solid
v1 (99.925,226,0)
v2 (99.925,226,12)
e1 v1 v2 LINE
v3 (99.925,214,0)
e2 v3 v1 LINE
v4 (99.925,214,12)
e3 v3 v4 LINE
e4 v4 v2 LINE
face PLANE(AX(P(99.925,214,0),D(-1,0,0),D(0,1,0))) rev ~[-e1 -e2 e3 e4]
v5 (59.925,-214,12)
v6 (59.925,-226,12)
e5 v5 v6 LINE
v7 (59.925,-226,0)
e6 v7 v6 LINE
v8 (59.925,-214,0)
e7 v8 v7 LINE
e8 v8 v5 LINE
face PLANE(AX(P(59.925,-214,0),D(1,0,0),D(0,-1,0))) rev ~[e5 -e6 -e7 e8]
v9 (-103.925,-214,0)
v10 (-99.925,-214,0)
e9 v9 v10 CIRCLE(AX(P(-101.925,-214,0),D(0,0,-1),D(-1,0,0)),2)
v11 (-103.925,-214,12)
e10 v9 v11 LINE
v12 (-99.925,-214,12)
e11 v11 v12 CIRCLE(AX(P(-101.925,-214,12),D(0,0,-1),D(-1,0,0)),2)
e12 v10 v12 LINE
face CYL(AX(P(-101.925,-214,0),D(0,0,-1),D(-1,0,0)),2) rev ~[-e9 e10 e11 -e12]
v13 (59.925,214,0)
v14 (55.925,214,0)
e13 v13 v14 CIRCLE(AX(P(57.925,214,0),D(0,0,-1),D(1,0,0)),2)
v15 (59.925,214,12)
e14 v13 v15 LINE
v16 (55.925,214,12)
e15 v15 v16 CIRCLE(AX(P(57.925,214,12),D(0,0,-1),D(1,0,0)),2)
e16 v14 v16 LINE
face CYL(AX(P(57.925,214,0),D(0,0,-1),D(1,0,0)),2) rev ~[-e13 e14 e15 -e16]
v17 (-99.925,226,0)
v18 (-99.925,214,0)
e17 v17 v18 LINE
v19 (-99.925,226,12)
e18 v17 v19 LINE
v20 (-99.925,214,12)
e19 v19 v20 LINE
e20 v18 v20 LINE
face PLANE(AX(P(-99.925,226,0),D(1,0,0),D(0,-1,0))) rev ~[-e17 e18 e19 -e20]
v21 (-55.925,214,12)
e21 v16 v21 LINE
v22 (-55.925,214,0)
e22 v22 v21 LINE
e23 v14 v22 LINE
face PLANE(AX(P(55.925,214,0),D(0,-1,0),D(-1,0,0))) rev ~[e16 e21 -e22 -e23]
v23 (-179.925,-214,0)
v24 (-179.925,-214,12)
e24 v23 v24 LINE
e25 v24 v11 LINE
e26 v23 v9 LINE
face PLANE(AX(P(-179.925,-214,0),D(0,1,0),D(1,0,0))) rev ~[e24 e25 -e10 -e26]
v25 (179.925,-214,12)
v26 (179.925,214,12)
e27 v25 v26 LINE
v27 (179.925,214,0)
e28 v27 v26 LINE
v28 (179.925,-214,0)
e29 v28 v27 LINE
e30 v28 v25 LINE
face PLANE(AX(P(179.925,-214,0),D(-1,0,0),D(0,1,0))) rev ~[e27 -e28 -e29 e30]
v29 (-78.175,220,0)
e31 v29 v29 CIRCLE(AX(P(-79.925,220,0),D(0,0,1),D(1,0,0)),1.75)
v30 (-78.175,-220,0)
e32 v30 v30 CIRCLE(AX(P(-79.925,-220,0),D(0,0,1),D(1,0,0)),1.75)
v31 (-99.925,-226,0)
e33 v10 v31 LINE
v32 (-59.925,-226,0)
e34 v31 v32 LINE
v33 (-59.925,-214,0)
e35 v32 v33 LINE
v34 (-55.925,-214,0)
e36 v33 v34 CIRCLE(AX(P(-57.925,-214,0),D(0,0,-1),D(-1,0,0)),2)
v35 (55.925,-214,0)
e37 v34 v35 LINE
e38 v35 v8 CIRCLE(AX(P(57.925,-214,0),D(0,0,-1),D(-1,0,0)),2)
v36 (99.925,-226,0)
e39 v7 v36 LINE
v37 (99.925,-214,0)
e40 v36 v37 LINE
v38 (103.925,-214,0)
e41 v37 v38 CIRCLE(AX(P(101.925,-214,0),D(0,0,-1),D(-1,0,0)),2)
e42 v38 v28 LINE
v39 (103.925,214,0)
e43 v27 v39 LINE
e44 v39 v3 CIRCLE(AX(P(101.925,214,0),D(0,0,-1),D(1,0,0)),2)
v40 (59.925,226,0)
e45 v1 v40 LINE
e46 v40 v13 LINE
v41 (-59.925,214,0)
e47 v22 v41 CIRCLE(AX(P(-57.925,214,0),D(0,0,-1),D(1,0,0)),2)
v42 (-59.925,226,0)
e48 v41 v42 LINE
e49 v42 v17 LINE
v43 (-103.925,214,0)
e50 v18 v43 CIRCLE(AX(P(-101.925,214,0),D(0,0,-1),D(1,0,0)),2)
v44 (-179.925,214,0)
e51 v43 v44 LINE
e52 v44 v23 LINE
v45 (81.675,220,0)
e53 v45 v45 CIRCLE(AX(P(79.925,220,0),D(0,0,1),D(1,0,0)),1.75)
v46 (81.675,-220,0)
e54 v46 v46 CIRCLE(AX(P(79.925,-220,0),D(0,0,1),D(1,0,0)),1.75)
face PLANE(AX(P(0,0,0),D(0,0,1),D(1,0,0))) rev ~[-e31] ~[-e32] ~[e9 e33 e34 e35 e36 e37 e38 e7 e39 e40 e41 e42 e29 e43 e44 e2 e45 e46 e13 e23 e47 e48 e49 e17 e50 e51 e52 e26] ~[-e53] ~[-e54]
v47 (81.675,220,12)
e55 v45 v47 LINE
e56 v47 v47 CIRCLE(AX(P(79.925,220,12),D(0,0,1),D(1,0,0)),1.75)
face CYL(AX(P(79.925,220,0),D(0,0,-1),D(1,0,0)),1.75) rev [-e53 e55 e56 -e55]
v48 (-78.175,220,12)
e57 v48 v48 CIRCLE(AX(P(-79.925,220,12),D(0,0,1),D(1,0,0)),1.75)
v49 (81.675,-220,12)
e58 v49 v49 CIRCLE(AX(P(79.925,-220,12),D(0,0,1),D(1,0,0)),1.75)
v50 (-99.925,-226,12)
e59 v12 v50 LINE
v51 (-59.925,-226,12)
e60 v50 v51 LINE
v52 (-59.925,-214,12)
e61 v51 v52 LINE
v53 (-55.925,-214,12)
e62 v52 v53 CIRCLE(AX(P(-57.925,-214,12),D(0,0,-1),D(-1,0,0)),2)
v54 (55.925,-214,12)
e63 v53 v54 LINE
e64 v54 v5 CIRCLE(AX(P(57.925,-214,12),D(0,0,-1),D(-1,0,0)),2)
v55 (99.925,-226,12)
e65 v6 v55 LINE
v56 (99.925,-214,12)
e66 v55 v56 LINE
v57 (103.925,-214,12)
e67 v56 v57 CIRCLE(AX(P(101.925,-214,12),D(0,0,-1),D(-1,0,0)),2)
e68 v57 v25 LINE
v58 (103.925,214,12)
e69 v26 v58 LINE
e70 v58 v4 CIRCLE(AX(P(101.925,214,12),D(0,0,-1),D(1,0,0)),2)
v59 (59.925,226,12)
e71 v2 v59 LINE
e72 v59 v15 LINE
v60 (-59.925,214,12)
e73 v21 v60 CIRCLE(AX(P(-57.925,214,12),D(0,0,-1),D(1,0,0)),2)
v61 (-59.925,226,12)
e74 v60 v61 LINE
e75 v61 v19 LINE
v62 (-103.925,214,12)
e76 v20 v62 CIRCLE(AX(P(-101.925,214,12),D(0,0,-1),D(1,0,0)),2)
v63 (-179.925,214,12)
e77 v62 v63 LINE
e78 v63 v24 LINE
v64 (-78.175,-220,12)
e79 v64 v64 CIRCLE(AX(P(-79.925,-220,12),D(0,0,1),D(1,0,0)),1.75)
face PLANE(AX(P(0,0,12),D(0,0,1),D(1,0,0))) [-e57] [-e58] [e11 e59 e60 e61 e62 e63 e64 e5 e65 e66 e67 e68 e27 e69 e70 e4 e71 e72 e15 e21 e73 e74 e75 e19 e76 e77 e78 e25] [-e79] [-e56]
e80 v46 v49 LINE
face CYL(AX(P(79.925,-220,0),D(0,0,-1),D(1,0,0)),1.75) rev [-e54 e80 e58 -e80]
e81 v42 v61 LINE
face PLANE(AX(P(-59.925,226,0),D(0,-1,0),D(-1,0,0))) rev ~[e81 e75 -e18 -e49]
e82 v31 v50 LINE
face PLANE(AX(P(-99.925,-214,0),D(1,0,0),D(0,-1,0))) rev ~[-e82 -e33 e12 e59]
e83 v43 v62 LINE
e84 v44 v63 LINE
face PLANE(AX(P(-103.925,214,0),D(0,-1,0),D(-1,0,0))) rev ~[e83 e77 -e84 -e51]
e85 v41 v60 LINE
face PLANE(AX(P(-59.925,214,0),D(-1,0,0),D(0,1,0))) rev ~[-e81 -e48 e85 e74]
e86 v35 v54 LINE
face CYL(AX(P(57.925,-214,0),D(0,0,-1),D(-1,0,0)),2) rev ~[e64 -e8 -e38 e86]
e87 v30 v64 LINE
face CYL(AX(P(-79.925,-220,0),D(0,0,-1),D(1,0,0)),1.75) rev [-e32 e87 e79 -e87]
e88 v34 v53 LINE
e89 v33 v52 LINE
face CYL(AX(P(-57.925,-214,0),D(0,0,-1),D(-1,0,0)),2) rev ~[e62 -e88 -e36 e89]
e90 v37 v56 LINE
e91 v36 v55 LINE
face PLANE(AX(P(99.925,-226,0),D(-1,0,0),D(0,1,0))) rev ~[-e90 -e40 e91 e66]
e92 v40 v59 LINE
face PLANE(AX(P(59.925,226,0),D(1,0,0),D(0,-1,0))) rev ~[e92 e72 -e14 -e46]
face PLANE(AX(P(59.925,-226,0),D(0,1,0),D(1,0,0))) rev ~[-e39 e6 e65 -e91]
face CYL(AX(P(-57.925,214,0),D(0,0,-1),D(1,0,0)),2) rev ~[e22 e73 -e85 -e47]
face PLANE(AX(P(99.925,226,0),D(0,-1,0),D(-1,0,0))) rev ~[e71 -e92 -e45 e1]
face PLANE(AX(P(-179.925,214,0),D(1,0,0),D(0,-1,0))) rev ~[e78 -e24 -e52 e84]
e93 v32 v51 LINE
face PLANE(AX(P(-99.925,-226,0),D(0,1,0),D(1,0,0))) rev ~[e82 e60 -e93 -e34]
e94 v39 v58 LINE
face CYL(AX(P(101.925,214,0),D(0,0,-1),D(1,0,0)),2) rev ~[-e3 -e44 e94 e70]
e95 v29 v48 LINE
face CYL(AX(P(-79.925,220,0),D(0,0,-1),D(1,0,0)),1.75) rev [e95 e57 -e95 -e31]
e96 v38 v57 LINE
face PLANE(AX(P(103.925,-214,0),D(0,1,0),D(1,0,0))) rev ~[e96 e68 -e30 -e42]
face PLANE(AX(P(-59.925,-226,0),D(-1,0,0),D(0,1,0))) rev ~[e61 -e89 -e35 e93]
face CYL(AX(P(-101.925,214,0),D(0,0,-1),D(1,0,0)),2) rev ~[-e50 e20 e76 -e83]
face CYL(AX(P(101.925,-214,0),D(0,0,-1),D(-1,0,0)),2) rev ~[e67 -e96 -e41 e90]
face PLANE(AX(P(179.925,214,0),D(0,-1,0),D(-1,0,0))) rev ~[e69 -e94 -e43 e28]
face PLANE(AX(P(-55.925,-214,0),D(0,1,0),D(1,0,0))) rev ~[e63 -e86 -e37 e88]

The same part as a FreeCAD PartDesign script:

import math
import FreeCAD as App
import Part
import Sketcher

doc = App.newDocument("Part")
body = doc.addObject("PartDesign::Body", "Body")

sketch1 = body.newObject("Sketcher::SketchObject", "Sketch")
sketch1.AttachmentSupport = (doc.getObject("XY_Plane"), [""])
sketch1.MapMode = "FlatFace"
sketch1.addGeometry([
    Part.LineSegment(App.Vector(-179.925, 214, 0), App.Vector(-179.925, -214, 0)),
    Part.LineSegment(App.Vector(-179.925, -214, 0), App.Vector(-103.925, -214, 0)),
    Part.ArcOfCircle(Part.Circle(App.Vector(-101.925, -214, 0), App.Vector(0, 0, 1), 2), math.radians(0), math.radians(180)),
    Part.LineSegment(App.Vector(-99.925, -214, 0), App.Vector(-99.925, -226, 0)),
    Part.LineSegment(App.Vector(-99.925, -226, 0), App.Vector(-59.925, -226, 0)),
    Part.LineSegment(App.Vector(-59.925, -226, 0), App.Vector(-59.925, -214, 0)),
    Part.ArcOfCircle(Part.Circle(App.Vector(-57.925, -214, 0), App.Vector(0, 0, 1), 2), math.radians(0), math.radians(180)),
    Part.LineSegment(App.Vector(-55.925, -214, 0), App.Vector(55.925, -214, 0)),
    Part.ArcOfCircle(Part.Circle(App.Vector(57.925, -214, 0), App.Vector(0, 0, 1), 2), math.radians(0), math.radians(180)),
    Part.LineSegment(App.Vector(59.925, -214, 0), App.Vector(59.925, -226, 0)),
    Part.LineSegment(App.Vector(59.925, -226, 0), App.Vector(99.925, -226, 0)),
    Part.LineSegment(App.Vector(99.925, -226, 0), App.Vector(99.925, -214, 0)),
    Part.ArcOfCircle(Part.Circle(App.Vector(101.925, -214, 0), App.Vector(0, 0, 1), 2), math.radians(0), math.radians(180)),
    Part.LineSegment(App.Vector(103.925, -214, 0), App.Vector(179.925, -214, 0)),
    Part.LineSegment(App.Vector(179.925, -214, 0), App.Vector(179.925, 214, 0)),
    Part.LineSegment(App.Vector(179.925, 214, 0), App.Vector(103.925, 214, 0)),
    Part.ArcOfCircle(Part.Circle(App.Vector(101.925, 214, 0), App.Vector(0, 0, 1), 2), math.radians(180), math.radians(360)),
    Part.LineSegment(App.Vector(99.925, 214, 0), App.Vector(99.925, 226, 0)),
    Part.LineSegment(App.Vector(99.925, 226, 0), App.Vector(59.925, 226, 0)),
    Part.LineSegment(App.Vector(59.925, 226, 0), App.Vector(59.925, 214, 0)),
    Part.ArcOfCircle(Part.Circle(App.Vector(57.925, 214, 0), App.Vector(0, 0, 1), 2), math.radians(180), math.radians(360)),
    Part.LineSegment(App.Vector(55.925, 214, 0), App.Vector(-55.925, 214, 0)),
    Part.ArcOfCircle(Part.Circle(App.Vector(-57.925, 214, 0), App.Vector(0, 0, 1), 2), math.radians(180), math.radians(360)),
    Part.LineSegment(App.Vector(-59.925, 214, 0), App.Vector(-59.925, 226, 0)),
    Part.LineSegment(App.Vector(-59.925, 226, 0), App.Vector(-99.925, 226, 0)),
    Part.LineSegment(App.Vector(-99.925, 226, 0), App.Vector(-99.925, 214, 0)),
    Part.ArcOfCircle(Part.Circle(App.Vector(-101.925, 214, 0), App.Vector(0, 0, 1), 2), math.radians(180), math.radians(360)),
    Part.LineSegment(App.Vector(-103.925, 214, 0), App.Vector(-179.925, 214, 0)),
    Part.Circle(App.Vector(-79.925, -220, 0), App.Vector(0, 0, 1), 1.75),
    Part.Circle(App.Vector(79.925, -220, 0), App.Vector(0, 0, 1), 1.75),
    Part.Circle(App.Vector(-79.925, 220, 0), App.Vector(0, 0, 1), 1.75),
    Part.Circle(App.Vector(79.925, 220, 0), App.Vector(0, 0, 1), 1.75),
], False)
sketch1.addConstraint([
    Sketcher.Constraint("Coincident", 0, 2, 1, 1),
    Sketcher.Constraint("Coincident", 1, 2, 2, 2),
    Sketcher.Constraint("Tangent", 2, 1, 3, 1),
    Sketcher.Constraint("Coincident", 3, 2, 4, 1),
    Sketcher.Constraint("Coincident", 4, 2, 5, 1),
    Sketcher.Constraint("Tangent", 5, 2, 6, 2),
    Sketcher.Constraint("Coincident", 6, 1, 7, 1),
    Sketcher.Constraint("Coincident", 7, 2, 8, 2),
    Sketcher.Constraint("Tangent", 8, 1, 9, 1),
    Sketcher.Constraint("Coincident", 9, 2, 10, 1),
    Sketcher.Constraint("Coincident", 10, 2, 11, 1),
    Sketcher.Constraint("Tangent", 11, 2, 12, 2),
    Sketcher.Constraint("Coincident", 12, 1, 13, 1),
    Sketcher.Constraint("Coincident", 13, 2, 14, 1),
    Sketcher.Constraint("Coincident", 14, 2, 15, 1),
    Sketcher.Constraint("Coincident", 15, 2, 16, 2),
    Sketcher.Constraint("Tangent", 16, 1, 17, 1),
    Sketcher.Constraint("Coincident", 17, 2, 18, 1),
    Sketcher.Constraint("Coincident", 18, 2, 19, 1),
    Sketcher.Constraint("Tangent", 19, 2, 20, 2),
    Sketcher.Constraint("Coincident", 20, 1, 21, 1),
    Sketcher.Constraint("Coincident", 21, 2, 22, 2),
    Sketcher.Constraint("Tangent", 22, 1, 23, 1),
    Sketcher.Constraint("Coincident", 23, 2, 24, 1),
    Sketcher.Constraint("Coincident", 24, 2, 25, 1),
    Sketcher.Constraint("Tangent", 25, 2, 26, 2),
    Sketcher.Constraint("Coincident", 26, 1, 27, 1),
    Sketcher.Constraint("Coincident", 27, 2, 0, 1),
    Sketcher.Constraint("Vertical", 0),
    Sketcher.Constraint("Horizontal", 1),
    Sketcher.Constraint("Vertical", 3),
    Sketcher.Constraint("Horizontal", 4),
    Sketcher.Constraint("Vertical", 5),
    Sketcher.Constraint("Horizontal", 7),
    Sketcher.Constraint("Vertical", 9),
    Sketcher.Constraint("Horizontal", 10),
    Sketcher.Constraint("Vertical", 11),
    Sketcher.Constraint("Horizontal", 13),
    Sketcher.Constraint("Vertical", 14),
    Sketcher.Constraint("Horizontal", 15),
    Sketcher.Constraint("Vertical", 17),
    Sketcher.Constraint("Horizontal", 18),
    Sketcher.Constraint("Vertical", 19),
    Sketcher.Constraint("Horizontal", 21),
    Sketcher.Constraint("Vertical", 23),
    Sketcher.Constraint("Horizontal", 24),
    Sketcher.Constraint("Vertical", 25),
    Sketcher.Constraint("Horizontal", 27),
    Sketcher.Constraint("Equal", 2, 6),
    Sketcher.Constraint("Equal", 6, 8),
    Sketcher.Constraint("Equal", 8, 12),
    Sketcher.Constraint("Equal", 12, 16),
    Sketcher.Constraint("Equal", 16, 20),
    Sketcher.Constraint("Equal", 20, 22),
    Sketcher.Constraint("Equal", 22, 26),
    Sketcher.Constraint("Equal", 28, 29),
    Sketcher.Constraint("Equal", 29, 30),
    Sketcher.Constraint("Equal", 30, 31),
    Sketcher.Constraint("Symmetric", 2, 3, 16, 3, -1, 1),
    Sketcher.Constraint("Symmetric", 6, 3, 20, 3, -1, 1),
    Sketcher.Constraint("Symmetric", 8, 3, 22, 3, -1, 1),
    Sketcher.Constraint("Symmetric", 12, 3, 26, 3, -1, 1),
    Sketcher.Constraint("Symmetric", 29, 3, 30, 3, -1, 1),
    Sketcher.Constraint("Symmetric", 28, 3, 31, 3, -1, 1),
    Sketcher.Constraint("Symmetric", 0, 2, 14, 2, -1, 1),
    Sketcher.Constraint("Symmetric", 6, 3, 8, 3, -2),
    Sketcher.Constraint("Symmetric", 2, 3, 12, 3, -2),
    Sketcher.Constraint("Symmetric", 28, 3, 29, 3, -2),
    Sketcher.Constraint("Horizontal", 2, 3, 6, 3),
    Sketcher.Constraint("Horizontal", 12, 3, 0, 2),
    Sketcher.Constraint("Horizontal", 5, 2, 6, 1),
    Sketcher.Constraint("Horizontal", 4, 2, 9, 2),
    Sketcher.Constraint("Horizontal", 11, 2, 12, 1),
    Sketcher.Constraint("Horizontal", 19, 2, 20, 1),
    Sketcher.Constraint("Horizontal", 18, 2, 23, 2),
    Sketcher.Constraint("Horizontal", 25, 2, 26, 1),
    Sketcher.Constraint("Equal", 11, 17),
    Sketcher.Constraint("Radius", 2, 2.0),
    Sketcher.Constraint("Diameter", 28, 3.5),
    Sketcher.Constraint("DistanceX", 1, 1, 1, 2, 76.0),
    Sketcher.Constraint("DistanceX", 4, 1, 4, 2, 40.0),
    Sketcher.Constraint("DistanceY", 0, 2, 0, 1, 428.0),
    Sketcher.Constraint("DistanceY", 3, 2, 3, 1, 12.0),
    Sketcher.Constraint("DistanceY", 28, 3, -1, 1, 220.0),
    Sketcher.Constraint("DistanceX", 2, 3, 28, 3, 22.0),
    Sketcher.Constraint("DistanceX", 7, 1, 7, 2, 111.85),
])
pad1 = body.newObject("PartDesign::Pad", "Pad")
pad1.Profile = sketch1
pad1.Length = 12

doc.recompute()
